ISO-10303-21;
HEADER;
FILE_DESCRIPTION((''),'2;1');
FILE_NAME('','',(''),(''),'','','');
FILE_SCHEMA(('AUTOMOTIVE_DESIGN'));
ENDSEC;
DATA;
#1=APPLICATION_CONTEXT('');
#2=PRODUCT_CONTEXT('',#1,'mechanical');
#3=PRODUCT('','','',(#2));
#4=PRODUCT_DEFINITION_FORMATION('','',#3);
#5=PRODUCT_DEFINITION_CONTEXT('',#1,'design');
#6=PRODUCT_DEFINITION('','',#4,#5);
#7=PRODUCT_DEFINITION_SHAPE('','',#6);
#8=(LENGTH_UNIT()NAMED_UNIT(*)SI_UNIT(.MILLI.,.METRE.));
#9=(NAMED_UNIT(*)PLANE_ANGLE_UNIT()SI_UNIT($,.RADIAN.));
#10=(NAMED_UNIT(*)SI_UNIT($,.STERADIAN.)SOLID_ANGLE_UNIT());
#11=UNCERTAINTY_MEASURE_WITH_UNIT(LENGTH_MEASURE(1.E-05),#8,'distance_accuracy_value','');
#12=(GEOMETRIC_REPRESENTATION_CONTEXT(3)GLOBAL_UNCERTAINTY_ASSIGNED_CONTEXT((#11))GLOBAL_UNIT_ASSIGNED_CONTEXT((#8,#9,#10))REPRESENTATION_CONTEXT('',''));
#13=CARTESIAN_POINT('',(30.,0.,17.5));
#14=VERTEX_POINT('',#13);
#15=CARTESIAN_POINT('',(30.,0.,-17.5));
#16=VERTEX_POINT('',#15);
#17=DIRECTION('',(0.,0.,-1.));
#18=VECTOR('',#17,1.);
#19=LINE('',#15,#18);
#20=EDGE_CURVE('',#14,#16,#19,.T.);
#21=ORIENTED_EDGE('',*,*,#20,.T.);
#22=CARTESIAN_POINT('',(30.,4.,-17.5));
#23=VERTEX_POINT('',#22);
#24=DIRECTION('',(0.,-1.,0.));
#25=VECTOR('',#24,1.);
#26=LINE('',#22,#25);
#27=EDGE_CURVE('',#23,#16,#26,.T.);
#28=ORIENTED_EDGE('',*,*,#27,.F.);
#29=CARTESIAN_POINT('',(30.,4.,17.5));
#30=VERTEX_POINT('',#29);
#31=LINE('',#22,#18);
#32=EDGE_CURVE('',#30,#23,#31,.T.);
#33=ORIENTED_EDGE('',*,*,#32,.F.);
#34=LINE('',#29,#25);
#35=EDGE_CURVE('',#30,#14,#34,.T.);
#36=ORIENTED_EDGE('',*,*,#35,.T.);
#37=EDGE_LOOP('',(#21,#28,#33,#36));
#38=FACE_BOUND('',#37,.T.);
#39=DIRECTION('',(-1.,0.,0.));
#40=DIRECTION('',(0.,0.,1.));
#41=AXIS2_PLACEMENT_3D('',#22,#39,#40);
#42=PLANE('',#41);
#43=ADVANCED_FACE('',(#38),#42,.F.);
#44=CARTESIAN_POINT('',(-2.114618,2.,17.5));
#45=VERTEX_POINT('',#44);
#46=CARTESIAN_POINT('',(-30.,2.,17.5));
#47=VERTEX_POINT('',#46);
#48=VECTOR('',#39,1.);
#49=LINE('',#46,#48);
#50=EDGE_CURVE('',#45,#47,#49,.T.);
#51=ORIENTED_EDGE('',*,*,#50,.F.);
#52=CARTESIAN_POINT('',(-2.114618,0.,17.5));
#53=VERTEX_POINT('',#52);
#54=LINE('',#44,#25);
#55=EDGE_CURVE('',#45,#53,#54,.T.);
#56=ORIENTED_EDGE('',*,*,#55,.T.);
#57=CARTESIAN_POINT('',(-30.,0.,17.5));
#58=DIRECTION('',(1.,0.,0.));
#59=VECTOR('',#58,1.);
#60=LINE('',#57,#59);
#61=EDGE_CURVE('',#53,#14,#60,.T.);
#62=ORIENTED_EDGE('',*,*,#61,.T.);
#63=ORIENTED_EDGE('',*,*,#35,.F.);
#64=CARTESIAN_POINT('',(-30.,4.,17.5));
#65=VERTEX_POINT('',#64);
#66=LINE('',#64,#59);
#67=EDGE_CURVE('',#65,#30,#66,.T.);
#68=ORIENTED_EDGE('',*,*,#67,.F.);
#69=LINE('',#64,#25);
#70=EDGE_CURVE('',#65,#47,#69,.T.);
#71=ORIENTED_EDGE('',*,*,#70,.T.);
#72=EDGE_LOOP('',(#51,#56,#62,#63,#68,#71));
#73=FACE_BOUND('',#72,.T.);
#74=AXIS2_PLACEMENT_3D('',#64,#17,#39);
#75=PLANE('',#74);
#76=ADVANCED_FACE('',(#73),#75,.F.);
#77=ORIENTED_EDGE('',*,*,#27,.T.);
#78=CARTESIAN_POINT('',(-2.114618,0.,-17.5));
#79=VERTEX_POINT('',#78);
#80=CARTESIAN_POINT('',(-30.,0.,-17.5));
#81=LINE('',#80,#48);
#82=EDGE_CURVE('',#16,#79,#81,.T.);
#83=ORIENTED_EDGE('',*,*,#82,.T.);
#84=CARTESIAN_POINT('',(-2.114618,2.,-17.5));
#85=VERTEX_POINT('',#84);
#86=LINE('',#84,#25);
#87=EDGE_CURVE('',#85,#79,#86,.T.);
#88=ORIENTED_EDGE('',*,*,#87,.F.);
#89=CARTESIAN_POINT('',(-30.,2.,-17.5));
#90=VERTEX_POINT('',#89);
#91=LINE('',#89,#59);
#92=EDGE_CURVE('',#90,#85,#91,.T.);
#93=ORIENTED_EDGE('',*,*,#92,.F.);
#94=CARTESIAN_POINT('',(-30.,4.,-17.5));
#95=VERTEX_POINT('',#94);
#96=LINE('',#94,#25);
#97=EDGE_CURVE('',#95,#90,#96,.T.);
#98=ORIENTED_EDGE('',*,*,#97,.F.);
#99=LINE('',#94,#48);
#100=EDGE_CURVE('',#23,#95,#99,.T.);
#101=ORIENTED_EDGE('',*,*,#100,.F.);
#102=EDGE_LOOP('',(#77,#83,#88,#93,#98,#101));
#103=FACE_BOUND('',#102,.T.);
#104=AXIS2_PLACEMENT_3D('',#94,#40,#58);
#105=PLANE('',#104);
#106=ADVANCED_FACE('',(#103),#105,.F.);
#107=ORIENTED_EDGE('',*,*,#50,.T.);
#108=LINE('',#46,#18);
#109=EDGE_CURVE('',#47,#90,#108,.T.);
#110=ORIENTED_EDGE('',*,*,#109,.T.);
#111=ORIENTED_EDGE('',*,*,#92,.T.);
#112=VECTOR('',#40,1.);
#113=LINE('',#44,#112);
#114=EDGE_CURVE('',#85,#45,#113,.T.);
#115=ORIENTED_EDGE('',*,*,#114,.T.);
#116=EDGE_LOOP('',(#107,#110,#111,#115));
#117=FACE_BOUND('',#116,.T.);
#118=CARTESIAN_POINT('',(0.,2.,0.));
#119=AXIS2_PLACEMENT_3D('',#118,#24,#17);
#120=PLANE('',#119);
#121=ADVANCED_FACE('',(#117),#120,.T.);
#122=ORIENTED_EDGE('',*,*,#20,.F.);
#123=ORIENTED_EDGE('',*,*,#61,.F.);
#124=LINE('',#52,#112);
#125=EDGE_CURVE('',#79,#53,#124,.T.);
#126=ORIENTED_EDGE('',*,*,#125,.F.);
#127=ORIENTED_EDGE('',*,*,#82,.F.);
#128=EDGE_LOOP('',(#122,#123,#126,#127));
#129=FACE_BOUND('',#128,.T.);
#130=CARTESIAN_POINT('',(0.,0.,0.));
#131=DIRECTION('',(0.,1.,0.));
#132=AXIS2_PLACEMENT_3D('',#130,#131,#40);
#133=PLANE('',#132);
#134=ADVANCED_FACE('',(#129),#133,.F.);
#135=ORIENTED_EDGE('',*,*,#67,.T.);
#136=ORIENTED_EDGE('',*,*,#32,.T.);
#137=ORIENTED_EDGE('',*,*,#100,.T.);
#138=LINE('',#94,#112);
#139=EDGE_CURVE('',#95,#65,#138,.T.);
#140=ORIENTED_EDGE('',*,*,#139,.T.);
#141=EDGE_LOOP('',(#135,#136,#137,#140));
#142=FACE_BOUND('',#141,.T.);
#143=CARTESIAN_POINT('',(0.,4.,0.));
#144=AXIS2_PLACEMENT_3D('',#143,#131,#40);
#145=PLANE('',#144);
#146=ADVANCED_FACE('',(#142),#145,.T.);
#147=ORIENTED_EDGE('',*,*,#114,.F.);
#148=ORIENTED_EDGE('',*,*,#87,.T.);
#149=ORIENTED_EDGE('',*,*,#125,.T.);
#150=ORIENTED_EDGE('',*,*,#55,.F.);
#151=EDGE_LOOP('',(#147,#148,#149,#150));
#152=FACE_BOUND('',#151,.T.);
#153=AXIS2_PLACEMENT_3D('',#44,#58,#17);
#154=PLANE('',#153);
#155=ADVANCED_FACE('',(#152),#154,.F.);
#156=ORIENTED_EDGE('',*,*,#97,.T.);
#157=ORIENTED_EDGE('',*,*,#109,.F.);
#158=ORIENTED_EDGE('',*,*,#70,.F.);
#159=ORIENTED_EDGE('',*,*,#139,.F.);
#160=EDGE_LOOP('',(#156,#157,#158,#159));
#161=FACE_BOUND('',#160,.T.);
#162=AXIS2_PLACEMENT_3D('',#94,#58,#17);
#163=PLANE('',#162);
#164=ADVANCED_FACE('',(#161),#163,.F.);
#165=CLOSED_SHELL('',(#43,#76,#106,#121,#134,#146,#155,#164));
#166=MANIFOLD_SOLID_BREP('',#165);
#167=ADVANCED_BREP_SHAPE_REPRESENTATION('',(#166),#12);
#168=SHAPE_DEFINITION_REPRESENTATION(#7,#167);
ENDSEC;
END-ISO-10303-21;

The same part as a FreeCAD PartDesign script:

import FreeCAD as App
import Part
import Sketcher
Q = App.Units.Quantity


def add_polygon(sketch, points):
    """Adds a closed chain of lines whose ends are joined by coincident constraints."""
    first, n = sketch.GeometryCount, len(points)
    for a, b in zip(points, points[1:] + points[:1]):
        sketch.addGeometry(Part.LineSegment(App.Vector(*a, 0), App.Vector(*b, 0)), False)
    for i in range(n):
        sketch.addConstraint(Sketcher.Constraint("Coincident", first + i, 2, first + (i + 1) % n, 1))

doc = App.newDocument("Part")
body = doc.addObject("PartDesign::Body", "Body")

# Sketch on XZ plane
sketch1 = body.newObject("Sketcher::SketchObject", "Sketch")
sketch1.AttachmentSupport = (doc.getObject("XZ_Plane"), [""])
sketch1.MapMode = "FlatFace"
add_polygon(sketch1, [(-30, -18), (-30, 18), (30, 18), (30, -18)])  # lines 0-3
sketch1.addConstraint([
    Sketcher.Constraint("Vertical", 0),
    Sketcher.Constraint("Horizontal", 1),
    Sketcher.Constraint("Vertical", 2),
    Sketcher.Constraint("Horizontal", 3),
    Sketcher.Constraint("Symmetric", 0, 2, 2, 2, -1, 1),
    Sketcher.Constraint("DistanceX", 1, 1, 1, 2, Q("60 mm")),
    Sketcher.Constraint("DistanceY", 0, 1, 0, 2, Q("35 mm")),
])
pad1 = body.newObject("PartDesign::Pad", "Pad")
pad1.Profile = sketch1
pad1.Length = 4
pad1.Reversed = True

# Sketch on XZ plane
sketch2 = body.newObject("Sketcher::SketchObject", "Sketch001")
sketch2.AttachmentSupport = (doc.getObject("XZ_Plane"), [""])
sketch2.MapMode = "FlatFace"
add_polygon(sketch2, [(-30, 18), (-30, -18), (-2, -18), (-2, 18)])  # lines 0-3
sketch2.addConstraint([
    Sketcher.Constraint("Vertical", 0),
    Sketcher.Constraint("Horizontal", 1),
    Sketcher.Constraint("Vertical", 2),
    Sketcher.Constraint("Horizontal", 3),
    Sketcher.Constraint("DistanceY", 0, 2, 0, 1, Q("35 mm")),
    Sketcher.Constraint("DistanceX", 0, 2, -1, 1, Q("30 mm")),
    Sketcher.Constraint("DistanceY", 0, 2, -1, 1, Q("17.5 mm")),
    Sketcher.Constraint("DistanceX", 1, 1, 1, 2, Q("27.885382 mm")),
])
pocket1 = body.newObject("PartDesign::Pocket", "Pocket")
pocket1.Profile = sketch2
pocket1.Length = 2

doc.recompute()
